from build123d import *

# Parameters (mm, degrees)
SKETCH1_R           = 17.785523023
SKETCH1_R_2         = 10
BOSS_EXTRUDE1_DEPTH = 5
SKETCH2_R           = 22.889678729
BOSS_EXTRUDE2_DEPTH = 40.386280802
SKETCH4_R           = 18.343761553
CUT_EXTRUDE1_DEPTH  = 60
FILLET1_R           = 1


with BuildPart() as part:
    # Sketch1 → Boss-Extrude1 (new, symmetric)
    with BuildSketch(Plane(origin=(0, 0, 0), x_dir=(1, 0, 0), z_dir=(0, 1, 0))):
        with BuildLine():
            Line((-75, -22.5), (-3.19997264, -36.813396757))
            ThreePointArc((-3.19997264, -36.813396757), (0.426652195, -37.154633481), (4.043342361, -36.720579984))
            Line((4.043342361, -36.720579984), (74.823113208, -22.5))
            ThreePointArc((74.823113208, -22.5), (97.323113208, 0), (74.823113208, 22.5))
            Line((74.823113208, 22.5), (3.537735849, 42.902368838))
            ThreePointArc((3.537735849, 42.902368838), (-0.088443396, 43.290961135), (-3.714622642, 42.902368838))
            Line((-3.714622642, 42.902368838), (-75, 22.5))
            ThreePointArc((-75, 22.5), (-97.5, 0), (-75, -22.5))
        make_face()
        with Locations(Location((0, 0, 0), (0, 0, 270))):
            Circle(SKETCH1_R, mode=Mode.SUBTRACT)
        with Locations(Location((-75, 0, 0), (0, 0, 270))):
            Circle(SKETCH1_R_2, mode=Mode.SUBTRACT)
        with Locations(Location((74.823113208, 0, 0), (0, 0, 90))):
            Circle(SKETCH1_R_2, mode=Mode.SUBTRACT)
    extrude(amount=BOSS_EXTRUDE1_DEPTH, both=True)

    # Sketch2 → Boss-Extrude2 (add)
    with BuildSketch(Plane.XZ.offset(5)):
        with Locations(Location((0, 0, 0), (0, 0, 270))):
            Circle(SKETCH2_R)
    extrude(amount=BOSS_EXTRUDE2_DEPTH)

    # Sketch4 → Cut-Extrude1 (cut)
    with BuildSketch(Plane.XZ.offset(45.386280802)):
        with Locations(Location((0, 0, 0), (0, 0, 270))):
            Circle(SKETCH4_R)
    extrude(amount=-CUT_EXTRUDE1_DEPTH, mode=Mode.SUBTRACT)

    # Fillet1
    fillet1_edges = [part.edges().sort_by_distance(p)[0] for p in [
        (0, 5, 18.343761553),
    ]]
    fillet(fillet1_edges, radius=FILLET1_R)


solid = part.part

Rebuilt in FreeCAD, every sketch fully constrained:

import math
import FreeCAD as App
import Part
import Sketcher

V = App.Vector


def edges_at(feature, points):
    """Names of the edges that pass closest to the given points."""
    edges = feature.Shape.Edges
    near = lambda p: min(range(len(edges)), key=lambda i: edges[i].distToShape(Part.Vertex(*p))[0])
    return sorted({f"Edge{near(p) + 1}" for p in points})

doc = App.newDocument("Part")
body = doc.addObject("PartDesign::Body", "Body")

# Sketch on XZ plane
sketch1 = body.newObject("Sketcher::SketchObject", "Sketch")
sketch1.AttachmentSupport = (doc.getObject("XZ_Plane"), [""])
sketch1.MapMode = "FlatFace"
sketch1.addGeometry(Part.LineSegment(V(-75, 22.5, 0), V(-3.199973, 36.813397, 0)), False)
sketch1.addGeometry(Part.ArcOfCircle(Part.Circle(V(0.207378, 20.042755, 0), V(0, 0, 1), 17.113283), math.radians(77.047026), math.radians(101.484664)), False)
sketch1.addGeometry(Part.LineSegment(V(4.043342, 36.72058, 0), V(74.823113, 22.5, 0)), False)
sketch1.addGeometry(Part.ArcOfCircle(Part.Circle(V(74.823113, 0, 0), V(0, 0, 1), 22.5), math.radians(-90), math.radians(90)), False)
sketch1.addGeometry(Part.LineSegment(V(74.823113, -22.5, 0), V(3.537736, -42.902369, 0)), False)
sketch1.addGeometry(Part.ArcOfCircle(Part.Circle(V(-0.088443, -26.177678, 0), V(0, 0, 1), 17.113283), math.radians(-102.233291), math.radians(-77.766709)), False)
sketch1.addGeometry(Part.LineSegment(V(-3.714623, -42.902369, 0), V(-75, -22.5, 0)), False)
sketch1.addGeometry(Part.ArcOfCircle(Part.Circle(V(-75, 0, 0), V(0, 0, 1), 22.5), math.radians(90), math.radians(270)), False)
sketch1.addGeometry(Part.Circle(V(-75, 0, 0), V(0, 0, 1), 10), False)
sketch1.addGeometry(Part.Circle(V(74.823113, 0, 0), V(0, 0, 1), 10), False)
sketch1.addGeometry(Part.Circle(V(0, 0, 0), V(0, 0, 1), 17.785523), False)
sketch1.addConstraint(Sketcher.Constraint("Coincident", 0, 2, 1, 2))
sketch1.addConstraint(Sketcher.Constraint("Coincident", 1, 1, 2, 1))
sketch1.addConstraint(Sketcher.Constraint("Coincident", 2, 2, 3, 2))
sketch1.addConstraint(Sketcher.Constraint("Coincident", 3, 1, 4, 1))
sketch1.addConstraint(Sketcher.Constraint("Coincident", 4, 2, 5, 2))
sketch1.addConstraint(Sketcher.Constraint("Coincident", 5, 1, 6, 1))
sketch1.addConstraint(Sketcher.Constraint("Coincident", 6, 2, 7, 2))
sketch1.addConstraint(Sketcher.Constraint("Coincident", 7, 1, 0, 1))
sketch1.addConstraint(Sketcher.Constraint("Coincident", 10, 3, -1, 1))
sketch1.addConstraint(Sketcher.Constraint("Coincident", 8, 3, 7, 3))
sketch1.addConstraint(Sketcher.Constraint("Coincident", 9, 3, 3, 3))
sketch1.addConstraint(Sketcher.Constraint("Equal", 1, 5))
sketch1.addConstraint(Sketcher.Constraint("Equal", 3, 7))
sketch1.addConstraint(Sketcher.Constraint("Equal", 8, 9))
sketch1.addConstraint(Sketcher.Constraint("Symmetric", 2, 2, 3, 1, -1))
sketch1.addConstraint(Sketcher.Constraint("Symmetric", 6, 2, 7, 1, -1))
sketch1.addConstraint(Sketcher.Constraint("Horizontal", 4, 2, 5, 1))
sketch1.addConstraint(Sketcher.Constraint("Vertical", 9, 3, 2, 2))
sketch1.addConstraint(Sketcher.Constraint("Vertical", 8, 3, 6, 2))
sketch1.addConstraint(Sketcher.Constraint("Equal", 4, 6))
sketch1.addConstraint(Sketcher.Constraint("Diameter", 8, 20.0))
sketch1.addConstraint(Sketcher.Constraint("Radius", 3, 22.5))
sketch1.addConstraint(Sketcher.Constraint("DistanceX", 7, 3, -1, 1, 75.0))
sketch1.addConstraint(Sketcher.Constraint("Diameter", 10, 35.571046))
sketch1.addConstraint(Sketcher.Constraint("Radius", 1, 17.113283))
sketch1.addConstraint(Sketcher.Constraint("DistanceX", 5, 1, 1, 3, 3.922001))
sketch1.addConstraint(Sketcher.Constraint("Distance", 0, 73.212822))
sketch1.addConstraint(Sketcher.Constraint("Distance", 2, 72.194189))
sketch1.addConstraint(Sketcher.Constraint("DistanceX", -1, 1, 1, 3, 0.207378))
sketch1.addConstraint(Sketcher.Constraint("DistanceY", 5, 3, -1, 1, 26.177678))
sketch1.addConstraint(Sketcher.Constraint("DistanceY", -1, 1, 1, 1, 36.72058))
sketch1.addConstraint(Sketcher.Constraint("DistanceY", 4, 2, -1, 1, 42.902369))
pad1 = body.newObject("PartDesign::Pad", "Pad")
pad1.Profile = sketch1
pad1.Length = 10
pad1.Midplane = True

# Sketch on XZ plane
sketch2 = body.newObject("Sketcher::SketchObject", "Sketch001")
sketch2.AttachmentSupport = (doc.getObject("XZ_Plane"), [""])
sketch2.MapMode = "FlatFace"
sketch2.AttachmentOffset = App.Placement(V(0, 0, 5), App.Rotation())
sketch2.addGeometry(Part.Circle(V(0, 0, 0), V(0, 0, 1), 22.889679), False)
sketch2.addConstraint(Sketcher.Constraint("Coincident", 0, 3, -1, 1))
sketch2.addConstraint(Sketcher.Constraint("Diameter", 0, 45.779357))
pad2 = body.newObject("PartDesign::Pad", "Pad001")
pad2.Profile = sketch2
pad2.Length = 40.386281

# Sketch on XZ plane
sketch3 = body.newObject("Sketcher::SketchObject", "Sketch002")
sketch3.AttachmentSupport = (doc.getObject("XZ_Plane"), [""])
sketch3.MapMode = "FlatFace"
sketch3.AttachmentOffset = App.Placement(V(0, 0, 45.386281), App.Rotation())
sketch3.addGeometry(Part.Circle(V(0, 0, 0), V(0, 0, 1), 18.343762), False)
sketch3.addConstraint(Sketcher.Constraint("Coincident", 0, 3, -1, 1))
sketch3.addConstraint(Sketcher.Constraint("Diameter", 0, 36.687523))
pocket1 = body.newObject("PartDesign::Pocket", "Pocket")
pocket1.Profile = sketch3
pocket1.Length = 60
doc.recompute()

fillet = body.newObject("PartDesign::Fillet", "Fillet")
fillet.Base = (pocket1, edges_at(pocket1, [(0, 5, 18.344)]))
fillet.Radius = 1

doc.recompute()
